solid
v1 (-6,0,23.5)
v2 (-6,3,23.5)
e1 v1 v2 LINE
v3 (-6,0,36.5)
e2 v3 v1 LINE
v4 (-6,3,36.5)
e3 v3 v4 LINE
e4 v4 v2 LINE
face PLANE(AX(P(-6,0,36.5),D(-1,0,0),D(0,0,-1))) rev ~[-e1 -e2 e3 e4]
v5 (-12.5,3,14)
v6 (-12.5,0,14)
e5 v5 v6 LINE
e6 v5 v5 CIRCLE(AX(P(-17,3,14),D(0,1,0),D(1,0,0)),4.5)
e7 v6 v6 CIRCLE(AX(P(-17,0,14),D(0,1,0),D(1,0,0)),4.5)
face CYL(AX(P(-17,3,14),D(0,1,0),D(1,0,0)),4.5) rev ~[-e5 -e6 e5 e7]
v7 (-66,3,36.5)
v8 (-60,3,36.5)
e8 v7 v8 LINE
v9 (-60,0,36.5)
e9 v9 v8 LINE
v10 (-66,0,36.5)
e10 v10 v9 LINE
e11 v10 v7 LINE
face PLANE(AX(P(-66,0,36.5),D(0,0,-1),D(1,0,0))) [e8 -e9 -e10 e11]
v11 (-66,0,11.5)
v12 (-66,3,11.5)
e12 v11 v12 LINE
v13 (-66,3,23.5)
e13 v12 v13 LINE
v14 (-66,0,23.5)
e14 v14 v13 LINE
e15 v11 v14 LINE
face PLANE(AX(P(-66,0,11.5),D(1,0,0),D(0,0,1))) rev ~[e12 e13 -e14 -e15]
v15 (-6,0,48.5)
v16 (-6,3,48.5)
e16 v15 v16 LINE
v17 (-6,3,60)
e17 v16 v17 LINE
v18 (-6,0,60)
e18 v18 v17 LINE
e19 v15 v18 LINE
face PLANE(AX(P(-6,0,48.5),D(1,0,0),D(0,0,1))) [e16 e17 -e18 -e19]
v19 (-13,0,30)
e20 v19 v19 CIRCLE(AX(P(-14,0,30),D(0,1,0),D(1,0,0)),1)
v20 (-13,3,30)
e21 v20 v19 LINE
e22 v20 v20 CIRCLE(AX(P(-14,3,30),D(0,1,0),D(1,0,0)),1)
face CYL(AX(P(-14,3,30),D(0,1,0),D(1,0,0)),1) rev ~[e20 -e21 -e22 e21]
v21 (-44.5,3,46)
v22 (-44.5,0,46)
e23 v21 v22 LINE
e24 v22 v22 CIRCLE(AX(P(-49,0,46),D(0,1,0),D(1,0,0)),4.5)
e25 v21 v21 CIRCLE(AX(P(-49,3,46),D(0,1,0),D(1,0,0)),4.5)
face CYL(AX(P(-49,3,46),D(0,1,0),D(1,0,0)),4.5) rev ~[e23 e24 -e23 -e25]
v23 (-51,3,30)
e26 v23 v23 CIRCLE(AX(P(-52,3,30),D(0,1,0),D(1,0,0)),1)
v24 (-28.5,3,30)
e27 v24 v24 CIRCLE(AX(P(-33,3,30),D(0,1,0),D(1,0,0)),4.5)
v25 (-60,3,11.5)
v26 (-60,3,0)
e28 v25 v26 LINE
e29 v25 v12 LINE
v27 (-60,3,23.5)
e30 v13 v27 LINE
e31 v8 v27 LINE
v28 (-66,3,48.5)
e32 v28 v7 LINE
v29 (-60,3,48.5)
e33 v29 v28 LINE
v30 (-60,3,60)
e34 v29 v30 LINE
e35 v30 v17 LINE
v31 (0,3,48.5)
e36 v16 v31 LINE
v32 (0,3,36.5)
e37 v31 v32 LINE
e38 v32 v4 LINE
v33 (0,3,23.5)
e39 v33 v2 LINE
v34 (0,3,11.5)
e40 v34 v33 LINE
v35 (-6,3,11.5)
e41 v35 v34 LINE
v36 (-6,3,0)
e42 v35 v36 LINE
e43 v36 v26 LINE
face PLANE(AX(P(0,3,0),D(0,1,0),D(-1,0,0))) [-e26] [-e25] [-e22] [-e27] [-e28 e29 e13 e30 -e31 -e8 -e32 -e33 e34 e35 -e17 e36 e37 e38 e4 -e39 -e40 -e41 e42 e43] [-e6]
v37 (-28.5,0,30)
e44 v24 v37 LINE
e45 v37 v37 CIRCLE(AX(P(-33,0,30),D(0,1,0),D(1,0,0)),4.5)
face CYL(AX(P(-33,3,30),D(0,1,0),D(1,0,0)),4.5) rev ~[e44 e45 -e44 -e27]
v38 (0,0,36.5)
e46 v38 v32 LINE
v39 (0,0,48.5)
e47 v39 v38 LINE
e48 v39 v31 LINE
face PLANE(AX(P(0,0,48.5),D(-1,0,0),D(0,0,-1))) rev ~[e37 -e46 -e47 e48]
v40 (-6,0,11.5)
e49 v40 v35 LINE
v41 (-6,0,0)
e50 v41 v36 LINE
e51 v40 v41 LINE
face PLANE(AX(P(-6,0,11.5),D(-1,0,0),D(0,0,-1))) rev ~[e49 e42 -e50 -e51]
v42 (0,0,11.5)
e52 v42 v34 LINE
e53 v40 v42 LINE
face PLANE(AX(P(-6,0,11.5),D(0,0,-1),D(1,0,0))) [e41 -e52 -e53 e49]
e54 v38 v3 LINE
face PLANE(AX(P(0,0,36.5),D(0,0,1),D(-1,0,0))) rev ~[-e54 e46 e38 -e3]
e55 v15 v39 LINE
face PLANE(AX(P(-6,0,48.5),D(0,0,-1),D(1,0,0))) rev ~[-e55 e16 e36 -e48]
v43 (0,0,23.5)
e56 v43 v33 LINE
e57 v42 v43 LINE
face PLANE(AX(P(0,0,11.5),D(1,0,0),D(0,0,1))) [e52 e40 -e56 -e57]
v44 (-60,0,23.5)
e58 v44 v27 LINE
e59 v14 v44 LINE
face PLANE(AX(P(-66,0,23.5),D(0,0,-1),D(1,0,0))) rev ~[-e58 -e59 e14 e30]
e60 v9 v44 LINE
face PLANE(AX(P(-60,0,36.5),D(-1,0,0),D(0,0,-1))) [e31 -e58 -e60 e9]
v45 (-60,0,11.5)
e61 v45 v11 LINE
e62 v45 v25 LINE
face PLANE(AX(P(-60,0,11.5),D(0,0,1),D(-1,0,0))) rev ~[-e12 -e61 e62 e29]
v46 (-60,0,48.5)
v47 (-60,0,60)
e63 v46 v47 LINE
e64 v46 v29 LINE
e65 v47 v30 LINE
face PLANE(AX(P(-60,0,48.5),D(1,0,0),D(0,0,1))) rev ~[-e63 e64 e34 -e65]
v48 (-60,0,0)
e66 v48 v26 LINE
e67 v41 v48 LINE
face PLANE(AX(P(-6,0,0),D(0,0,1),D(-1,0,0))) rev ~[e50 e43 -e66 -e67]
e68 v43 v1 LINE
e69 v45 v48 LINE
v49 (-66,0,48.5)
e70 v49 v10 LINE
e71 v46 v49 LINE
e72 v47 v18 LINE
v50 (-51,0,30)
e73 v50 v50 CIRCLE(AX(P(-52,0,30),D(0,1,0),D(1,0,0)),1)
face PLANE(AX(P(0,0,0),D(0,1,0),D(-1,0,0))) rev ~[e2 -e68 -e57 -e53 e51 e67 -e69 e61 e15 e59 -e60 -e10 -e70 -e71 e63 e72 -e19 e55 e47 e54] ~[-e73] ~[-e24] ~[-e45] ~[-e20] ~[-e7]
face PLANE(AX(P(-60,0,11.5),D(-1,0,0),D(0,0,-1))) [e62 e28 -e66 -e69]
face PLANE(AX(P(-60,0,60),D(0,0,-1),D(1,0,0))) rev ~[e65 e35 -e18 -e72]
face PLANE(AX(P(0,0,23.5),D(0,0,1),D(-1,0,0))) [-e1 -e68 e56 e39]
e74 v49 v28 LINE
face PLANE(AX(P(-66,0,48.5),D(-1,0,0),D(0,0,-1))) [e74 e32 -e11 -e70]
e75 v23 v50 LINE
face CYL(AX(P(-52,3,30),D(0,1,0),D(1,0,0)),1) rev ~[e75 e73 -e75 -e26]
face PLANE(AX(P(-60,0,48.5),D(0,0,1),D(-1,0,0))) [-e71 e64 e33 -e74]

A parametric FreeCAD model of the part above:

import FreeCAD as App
import Part
import Sketcher
Q = App.Units.Quantity

doc = App.newDocument("Part")
body = doc.addObject("PartDesign::Body", "Body")

# Sketch on XZ plane
sketch1 = doc.addObject("Sketcher::SketchObject", "Sketch")
body.addObject(sketch1)
sketch1.AttachmentSupport = (doc.XZ_Plane, [""])
sketch1.MapMode = "FlatFace"
sketch1.addGeometry([
    Part.LineSegment(App.Vector(-60, 36.5, 0), App.Vector(-66, 36.5, 0)),  # 0
    Part.LineSegment(App.Vector(-66, 36.5, 0), App.Vector(-66, 48.5, 0)),  # 1
    Part.LineSegment(App.Vector(-66, 48.5, 0), App.Vector(-60, 48.5, 0)),  # 2
    Part.LineSegment(App.Vector(-60, 48.5, 0), App.Vector(-60, 60, 0)),  # 3
    Part.LineSegment(App.Vector(-60, 60, 0), App.Vector(-6, 60, 0)),  # 4
    Part.LineSegment(App.Vector(-6, 60, 0), App.Vector(-6, 48.5, 0)),  # 5
    Part.LineSegment(App.Vector(-6, 48.5, 0), App.Vector(0, 48.5, 0)),  # 6
    Part.LineSegment(App.Vector(0, 48.5, 0), App.Vector(0, 36.5, 0)),  # 7
    Part.LineSegment(App.Vector(0, 36.5, 0), App.Vector(-6, 36.5, 0)),  # 8
    Part.LineSegment(App.Vector(-6, 36.5, 0), App.Vector(-6, 23.5, 0)),  # 9
    Part.LineSegment(App.Vector(-6, 23.5, 0), App.Vector(0, 23.5, 0)),  # 10
    Part.LineSegment(App.Vector(0, 23.5, 0), App.Vector(0, 11.5, 0)),  # 11
    Part.LineSegment(App.Vector(0, 11.5, 0), App.Vector(-6, 11.5, 0)),  # 12
    Part.LineSegment(App.Vector(-6, 11.5, 0), App.Vector(-6, 0, 0)),  # 13
    Part.LineSegment(App.Vector(-6, 0, 0), App.Vector(-60, 0, 0)),  # 14
    Part.LineSegment(App.Vector(-60, 0, 0), App.Vector(-60, 11.5, 0)),  # 15
    Part.LineSegment(App.Vector(-60, 11.5, 0), App.Vector(-66, 11.5, 0)),  # 16
    Part.LineSegment(App.Vector(-66, 11.5, 0), App.Vector(-66, 23.5, 0)),  # 17
    Part.LineSegment(App.Vector(-66, 23.5, 0), App.Vector(-60, 23.5, 0)),  # 18
    Part.LineSegment(App.Vector(-60, 23.5, 0), App.Vector(-60, 36.5, 0)),  # 19
], False)
sketch1.addConstraint([
    Sketcher.Constraint("Coincident", 0, 2, 1, 1),
    Sketcher.Constraint("Coincident", 1, 2, 2, 1),
    Sketcher.Constraint("Coincident", 2, 2, 3, 1),
    Sketcher.Constraint("Coincident", 3, 2, 4, 1),
    Sketcher.Constraint("Coincident", 4, 2, 5, 1),
    Sketcher.Constraint("Coincident", 5, 2, 6, 1),
    Sketcher.Constraint("Coincident", 6, 2, 7, 1),
    Sketcher.Constraint("Coincident", 7, 2, 8, 1),
    Sketcher.Constraint("Coincident", 8, 2, 9, 1),
    Sketcher.Constraint("Coincident", 9, 2, 10, 1),
    Sketcher.Constraint("Coincident", 10, 2, 11, 1),
    Sketcher.Constraint("Coincident", 11, 2, 12, 1),
    Sketcher.Constraint("Coincident", 12, 2, 13, 1),
    Sketcher.Constraint("Coincident", 13, 2, 14, 1),
    Sketcher.Constraint("Coincident", 14, 2, 15, 1),
    Sketcher.Constraint("Coincident", 15, 2, 16, 1),
    Sketcher.Constraint("Coincident", 16, 2, 17, 1),
    Sketcher.Constraint("Coincident", 17, 2, 18, 1),
    Sketcher.Constraint("Coincident", 18, 2, 19, 1),
    Sketcher.Constraint("Coincident", 19, 2, 0, 1),
    Sketcher.Constraint("Horizontal", 0),
    Sketcher.Constraint("Vertical", 1),
    Sketcher.Constraint("Horizontal", 2),
    Sketcher.Constraint("Vertical", 3),
    Sketcher.Constraint("Horizontal", 4),
    Sketcher.Constraint("Vertical", 5),
    Sketcher.Constraint("Horizontal", 6),
    Sketcher.Constraint("Vertical", 7),
    Sketcher.Constraint("Horizontal", 8),
    Sketcher.Constraint("Vertical", 9),
    Sketcher.Constraint("Horizontal", 10),
    Sketcher.Constraint("Vertical", 11),
    Sketcher.Constraint("Horizontal", 12),
    Sketcher.Constraint("Vertical", 13),
    Sketcher.Constraint("Horizontal", 14),
    Sketcher.Constraint("Vertical", 15),
    Sketcher.Constraint("Horizontal", 16),
    Sketcher.Constraint("Vertical", 17),
    Sketcher.Constraint("Horizontal", 18),
    Sketcher.Constraint("Vertical", 19),
    Sketcher.Constraint("PointOnObject", 6, 2, -2),
    Sketcher.Constraint("PointOnObject", 10, 2, -2),
    Sketcher.Constraint("PointOnObject", 13, 2, -1),
    Sketcher.Constraint("Horizontal", 2, 2, 5, 2),
    Sketcher.Constraint("Horizontal", 0, 2, 7, 2),
    Sketcher.Constraint("Horizontal", 12, 2, 15, 2),
    Sketcher.Constraint("Horizontal", 10, 2, 17, 2),
    Sketcher.Constraint("Vertical", 5, 2, 8, 2),
    Sketcher.Constraint("Vertical", 9, 2, 12, 2),
    Sketcher.Constraint("Vertical", 3, 2, 14, 2),
    Sketcher.Constraint("Vertical", 1, 2, 16, 2),
    Sketcher.Constraint("Vertical", 15, 2, 18, 2),
    Sketcher.Constraint("Equal", 2, 6),
    Sketcher.Constraint("Equal", 7, 11),
    Sketcher.Constraint("Equal", 5, 13),
    Sketcher.Constraint("DistanceX", 0, 2, 0, 1, Q("6 mm")),
    Sketcher.Constraint("DistanceY", 1, 1, 1, 2, Q("12 mm")),
    Sketcher.Constraint("DistanceY", 3, 1, 3, 2, Q("11.5 mm")),
    Sketcher.Constraint("DistanceX", 4, 1, 4, 2, Q("54 mm")),
    Sketcher.Constraint("DistanceY", 9, 2, 9, 1, Q("13 mm")),
])
pad1 = doc.addObject("PartDesign::Pad", "Pad")
body.addObject(pad1)
pad1.Profile = sketch1
pad1.Length = 3
pad1.Reversed = True

# Sketch on XZ plane
sketch2 = doc.addObject("Sketcher::SketchObject", "Sketch001")
body.addObject(sketch2)
sketch2.AttachmentSupport = (doc.XZ_Plane, [""])
sketch2.MapMode = "FlatFace"
sketch2.AttachmentOffset = App.Placement(App.Vector(0, 0, -3), App.Rotation())
sketch2.addGeometry([
    Part.Circle(App.Vector(-49, 46, 0), App.Vector(0, 0, 1), 4.5),  # 0
    Part.Circle(App.Vector(-17, 14, 0), App.Vector(0, 0, 1), 4.5),  # 1
    Part.Circle(App.Vector(-33, 30, 0), App.Vector(0, 0, 1), 4.5),  # 2
    Part.Circle(App.Vector(-14, 30, 0), App.Vector(0, 0, 1), 1),  # 3
    Part.Circle(App.Vector(-52, 30, 0), App.Vector(0, 0, 1), 1),  # 4
], False)
sketch2.addConstraint([
    Sketcher.Constraint("Equal", 0, 1),
    Sketcher.Constraint("Equal", 1, 2),
    Sketcher.Constraint("Equal", 3, 4),
    Sketcher.Constraint("Horizontal", 2, 3, 3, 3),
    Sketcher.Constraint("Horizontal", 3, 3, 4, 3),
    Sketcher.Constraint("Diameter", 0, Q("9 mm")),
    Sketcher.Constraint("Diameter", 3, Q("2 mm")),
    Sketcher.Constraint("DistanceX", 0, 3, 2, 3, Q("16 mm")),
    Sketcher.Constraint("DistanceY", 2, 3, 0, 3, Q("16 mm")),
    Sketcher.Constraint("DistanceX", 2, 3, 1, 3, Q("16 mm")),
    Sketcher.Constraint("DistanceY", 1, 3, 2, 3, Q("16 mm")),
    Sketcher.Constraint("DistanceX", 2, 3, 3, 3, Q("19 mm")),
    Sketcher.Constraint("DistanceX", 4, 3, 2, 3, Q("19 mm")),
    Sketcher.Constraint("DistanceX", 0, 3, -1, 1, Q("49 mm")),
    Sketcher.Constraint("DistanceY", -1, 1, 0, 3, Q("46 mm")),
])
pocket1 = doc.addObject("PartDesign::Pocket", "Pocket")
body.addObject(pocket1)
pocket1.Profile = sketch2
pocket1.Type = "ThroughAll"
pocket1.Reversed = True

doc.recompute()
